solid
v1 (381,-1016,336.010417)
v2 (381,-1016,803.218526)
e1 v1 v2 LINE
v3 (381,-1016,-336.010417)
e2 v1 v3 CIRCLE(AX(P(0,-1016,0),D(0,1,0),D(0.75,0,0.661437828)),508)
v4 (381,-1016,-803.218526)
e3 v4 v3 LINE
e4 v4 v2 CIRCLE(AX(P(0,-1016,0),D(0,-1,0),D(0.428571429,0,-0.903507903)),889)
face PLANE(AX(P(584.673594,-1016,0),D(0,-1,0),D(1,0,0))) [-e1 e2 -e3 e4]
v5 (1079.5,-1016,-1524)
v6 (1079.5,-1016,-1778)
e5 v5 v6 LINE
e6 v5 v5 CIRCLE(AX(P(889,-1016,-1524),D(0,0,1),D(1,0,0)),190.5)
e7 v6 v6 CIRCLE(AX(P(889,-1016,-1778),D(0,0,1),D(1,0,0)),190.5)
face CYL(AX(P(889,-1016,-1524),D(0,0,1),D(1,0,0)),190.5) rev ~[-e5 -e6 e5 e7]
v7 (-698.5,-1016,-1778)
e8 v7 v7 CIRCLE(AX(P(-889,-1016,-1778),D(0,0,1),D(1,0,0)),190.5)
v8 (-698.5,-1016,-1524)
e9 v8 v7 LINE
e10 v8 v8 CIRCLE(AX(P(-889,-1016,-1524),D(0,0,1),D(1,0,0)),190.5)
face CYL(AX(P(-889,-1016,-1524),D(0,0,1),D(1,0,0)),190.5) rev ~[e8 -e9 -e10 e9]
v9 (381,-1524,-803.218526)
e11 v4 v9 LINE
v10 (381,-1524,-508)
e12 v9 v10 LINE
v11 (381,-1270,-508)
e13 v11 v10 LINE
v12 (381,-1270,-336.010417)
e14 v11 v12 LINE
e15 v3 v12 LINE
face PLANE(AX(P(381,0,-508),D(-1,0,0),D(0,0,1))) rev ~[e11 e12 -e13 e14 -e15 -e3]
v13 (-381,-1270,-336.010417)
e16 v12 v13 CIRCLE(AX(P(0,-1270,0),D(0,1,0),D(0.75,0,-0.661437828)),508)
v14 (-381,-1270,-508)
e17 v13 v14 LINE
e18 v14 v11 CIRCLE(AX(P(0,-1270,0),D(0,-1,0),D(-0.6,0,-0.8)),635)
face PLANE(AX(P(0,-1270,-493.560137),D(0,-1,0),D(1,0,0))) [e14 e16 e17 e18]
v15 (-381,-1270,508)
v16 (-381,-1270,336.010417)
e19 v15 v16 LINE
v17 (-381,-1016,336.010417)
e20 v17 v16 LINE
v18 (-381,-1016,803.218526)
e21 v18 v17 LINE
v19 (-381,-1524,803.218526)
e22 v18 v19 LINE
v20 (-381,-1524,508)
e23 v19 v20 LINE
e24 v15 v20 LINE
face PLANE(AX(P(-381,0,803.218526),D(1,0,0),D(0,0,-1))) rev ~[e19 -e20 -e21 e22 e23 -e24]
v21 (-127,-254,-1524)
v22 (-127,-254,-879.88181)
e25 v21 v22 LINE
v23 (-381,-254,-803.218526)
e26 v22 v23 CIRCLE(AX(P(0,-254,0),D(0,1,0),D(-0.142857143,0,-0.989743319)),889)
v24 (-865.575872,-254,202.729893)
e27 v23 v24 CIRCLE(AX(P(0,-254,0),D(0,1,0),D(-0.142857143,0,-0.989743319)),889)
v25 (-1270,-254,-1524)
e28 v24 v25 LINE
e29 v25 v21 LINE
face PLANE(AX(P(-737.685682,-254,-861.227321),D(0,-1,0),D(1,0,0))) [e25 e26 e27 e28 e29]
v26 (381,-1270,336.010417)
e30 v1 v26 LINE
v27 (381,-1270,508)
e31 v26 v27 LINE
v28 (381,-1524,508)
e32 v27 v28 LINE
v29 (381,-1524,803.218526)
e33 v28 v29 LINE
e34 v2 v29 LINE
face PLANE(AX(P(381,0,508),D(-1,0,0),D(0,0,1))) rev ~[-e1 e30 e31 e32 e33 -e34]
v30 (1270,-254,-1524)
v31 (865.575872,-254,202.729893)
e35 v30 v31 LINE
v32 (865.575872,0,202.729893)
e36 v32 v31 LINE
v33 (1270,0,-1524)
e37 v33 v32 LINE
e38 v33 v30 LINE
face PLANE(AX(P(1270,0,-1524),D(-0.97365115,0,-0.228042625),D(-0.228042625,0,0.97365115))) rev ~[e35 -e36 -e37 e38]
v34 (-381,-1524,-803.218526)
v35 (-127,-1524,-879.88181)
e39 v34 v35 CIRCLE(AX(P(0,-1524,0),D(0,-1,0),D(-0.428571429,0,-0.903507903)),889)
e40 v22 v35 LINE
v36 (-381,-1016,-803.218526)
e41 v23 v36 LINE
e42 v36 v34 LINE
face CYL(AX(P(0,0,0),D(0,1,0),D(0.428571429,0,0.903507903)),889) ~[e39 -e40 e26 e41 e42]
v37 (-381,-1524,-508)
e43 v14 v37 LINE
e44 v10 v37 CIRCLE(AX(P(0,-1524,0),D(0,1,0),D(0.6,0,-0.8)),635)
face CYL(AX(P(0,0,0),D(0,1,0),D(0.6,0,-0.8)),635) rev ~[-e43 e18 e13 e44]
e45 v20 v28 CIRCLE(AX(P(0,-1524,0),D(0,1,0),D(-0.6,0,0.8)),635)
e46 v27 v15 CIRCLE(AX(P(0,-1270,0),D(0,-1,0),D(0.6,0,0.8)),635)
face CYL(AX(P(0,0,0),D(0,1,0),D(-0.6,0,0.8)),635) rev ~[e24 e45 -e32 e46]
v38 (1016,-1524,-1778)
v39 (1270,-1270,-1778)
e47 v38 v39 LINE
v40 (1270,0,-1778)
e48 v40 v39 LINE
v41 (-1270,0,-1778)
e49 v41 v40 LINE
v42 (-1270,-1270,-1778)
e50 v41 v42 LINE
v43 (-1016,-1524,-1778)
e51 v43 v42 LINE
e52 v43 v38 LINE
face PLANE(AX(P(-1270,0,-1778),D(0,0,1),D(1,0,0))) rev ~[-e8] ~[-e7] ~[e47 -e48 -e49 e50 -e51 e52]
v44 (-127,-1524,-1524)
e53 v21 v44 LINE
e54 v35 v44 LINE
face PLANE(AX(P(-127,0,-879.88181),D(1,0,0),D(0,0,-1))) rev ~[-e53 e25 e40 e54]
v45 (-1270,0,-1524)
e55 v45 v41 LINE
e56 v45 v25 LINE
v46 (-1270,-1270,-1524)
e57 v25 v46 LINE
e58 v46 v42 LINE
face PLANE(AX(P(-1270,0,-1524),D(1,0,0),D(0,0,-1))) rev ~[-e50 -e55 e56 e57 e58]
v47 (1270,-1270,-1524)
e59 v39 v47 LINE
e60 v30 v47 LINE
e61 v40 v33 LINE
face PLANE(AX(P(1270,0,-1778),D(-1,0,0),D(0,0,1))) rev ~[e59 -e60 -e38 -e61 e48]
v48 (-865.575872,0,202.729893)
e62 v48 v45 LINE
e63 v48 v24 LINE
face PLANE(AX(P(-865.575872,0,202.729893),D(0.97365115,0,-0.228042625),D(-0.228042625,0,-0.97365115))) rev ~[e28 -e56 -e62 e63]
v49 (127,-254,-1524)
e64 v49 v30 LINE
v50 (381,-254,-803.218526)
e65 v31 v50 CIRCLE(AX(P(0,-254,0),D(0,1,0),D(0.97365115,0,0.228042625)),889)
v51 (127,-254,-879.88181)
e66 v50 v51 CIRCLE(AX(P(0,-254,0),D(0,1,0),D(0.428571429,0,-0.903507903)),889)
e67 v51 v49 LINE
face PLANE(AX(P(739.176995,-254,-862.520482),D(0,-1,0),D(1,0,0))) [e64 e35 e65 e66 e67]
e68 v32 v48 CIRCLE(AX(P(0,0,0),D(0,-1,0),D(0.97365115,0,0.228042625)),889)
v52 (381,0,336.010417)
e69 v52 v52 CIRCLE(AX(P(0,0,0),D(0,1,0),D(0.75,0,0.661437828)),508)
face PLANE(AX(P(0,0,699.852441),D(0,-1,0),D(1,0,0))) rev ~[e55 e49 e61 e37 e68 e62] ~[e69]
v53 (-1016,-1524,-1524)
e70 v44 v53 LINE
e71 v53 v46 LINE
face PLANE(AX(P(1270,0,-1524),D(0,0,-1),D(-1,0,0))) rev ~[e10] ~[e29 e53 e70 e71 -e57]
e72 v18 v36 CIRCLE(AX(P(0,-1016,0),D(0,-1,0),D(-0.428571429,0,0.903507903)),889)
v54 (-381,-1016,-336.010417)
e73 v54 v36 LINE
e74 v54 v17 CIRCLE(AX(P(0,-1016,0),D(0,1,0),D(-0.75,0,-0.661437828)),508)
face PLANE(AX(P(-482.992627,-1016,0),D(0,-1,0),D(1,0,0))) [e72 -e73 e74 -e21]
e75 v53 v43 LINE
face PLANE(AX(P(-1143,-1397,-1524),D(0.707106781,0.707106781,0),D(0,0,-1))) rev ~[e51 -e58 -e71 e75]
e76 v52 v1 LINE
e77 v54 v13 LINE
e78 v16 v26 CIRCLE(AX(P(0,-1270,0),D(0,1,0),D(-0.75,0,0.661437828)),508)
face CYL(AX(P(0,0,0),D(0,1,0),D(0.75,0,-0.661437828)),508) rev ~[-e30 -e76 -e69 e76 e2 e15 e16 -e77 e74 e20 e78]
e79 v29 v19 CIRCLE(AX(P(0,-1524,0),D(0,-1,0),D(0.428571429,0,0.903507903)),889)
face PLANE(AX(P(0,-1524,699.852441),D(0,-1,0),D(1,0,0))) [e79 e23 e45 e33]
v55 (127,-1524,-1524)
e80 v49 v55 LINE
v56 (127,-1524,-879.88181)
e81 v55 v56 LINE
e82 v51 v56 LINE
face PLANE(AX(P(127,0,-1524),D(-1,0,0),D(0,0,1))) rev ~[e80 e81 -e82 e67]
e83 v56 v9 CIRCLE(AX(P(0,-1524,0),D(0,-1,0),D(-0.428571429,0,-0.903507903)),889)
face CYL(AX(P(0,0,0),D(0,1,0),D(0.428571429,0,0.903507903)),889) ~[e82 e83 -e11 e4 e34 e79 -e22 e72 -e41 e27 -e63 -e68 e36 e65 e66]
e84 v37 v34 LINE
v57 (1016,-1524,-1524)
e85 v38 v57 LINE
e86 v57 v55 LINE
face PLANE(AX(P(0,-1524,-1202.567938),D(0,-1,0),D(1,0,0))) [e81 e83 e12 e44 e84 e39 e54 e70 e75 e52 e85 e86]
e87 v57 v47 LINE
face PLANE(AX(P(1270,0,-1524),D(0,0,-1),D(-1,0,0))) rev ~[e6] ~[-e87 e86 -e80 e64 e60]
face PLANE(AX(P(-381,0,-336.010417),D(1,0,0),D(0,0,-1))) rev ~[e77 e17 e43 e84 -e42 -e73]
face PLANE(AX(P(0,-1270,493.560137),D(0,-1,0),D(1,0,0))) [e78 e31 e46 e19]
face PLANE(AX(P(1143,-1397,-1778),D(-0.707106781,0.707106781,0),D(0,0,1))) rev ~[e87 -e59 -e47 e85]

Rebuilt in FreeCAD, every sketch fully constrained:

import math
import FreeCAD as App
import Part
import Sketcher
Q = App.Units.Quantity


def edges_at(feature, points):
    """Names of the edges that pass closest to the given points."""
    edges = feature.Shape.Edges
    near = lambda p: min(range(len(edges)), key=lambda i: edges[i].distToShape(Part.Vertex(*p))[0])
    return sorted({f"Edge{near(p) + 1}" for p in points})

doc = App.newDocument("Part")
body = doc.addObject("PartDesign::Body", "Body")

sketch1 = doc.addObject("Sketcher::SketchObject", "Sketch")
body.addObject(sketch1)
sketch1.AttachmentSupport = (doc.XZ_Plane, [""])
sketch1.MapMode = "FlatFace"
sketch1.addGeometry(Part.LineSegment(App.Vector(1270, -1778, 0), App.Vector(1270, -1524, 0)), False)
sketch1.addGeometry(Part.LineSegment(App.Vector(1270, -1524, 0), App.Vector(-1270, -1524, 0)), False)
sketch1.addGeometry(Part.LineSegment(App.Vector(-1270, -1524, 0), App.Vector(-1270, -1778, 0)), False)
sketch1.addGeometry(Part.LineSegment(App.Vector(-1270, -1778, 0), App.Vector(1270, -1778, 0)), False)
sketch1.addConstraint(Sketcher.Constraint("Coincident", 0, 2, 1, 1))
sketch1.addConstraint(Sketcher.Constraint("Coincident", 1, 2, 2, 1))
sketch1.addConstraint(Sketcher.Constraint("Coincident", 2, 2, 3, 1))
sketch1.addConstraint(Sketcher.Constraint("Coincident", 3, 2, 0, 1))
sketch1.addConstraint(Sketcher.Constraint("Vertical", 0))
sketch1.addConstraint(Sketcher.Constraint("Horizontal", 1))
sketch1.addConstraint(Sketcher.Constraint("Vertical", 2))
sketch1.addConstraint(Sketcher.Constraint("Horizontal", 3))
sketch1.addConstraint(Sketcher.Constraint("DistanceX", 1, 2, 1, 1, Q("100 in")))
sketch1.addConstraint(Sketcher.Constraint("DistanceY", 0, 1, 0, 2, Q("10 in")))
sketch1.addConstraint(Sketcher.Constraint("DistanceX", -1, 1, 0, 2, Q("50 in")))
sketch1.addConstraint(Sketcher.Constraint("DistanceY", 0, 2, -1, 1, Q("60 in")))
pad1 = doc.addObject("PartDesign::Pad", "Pad")
body.addObject(pad1)
pad1.Profile = sketch1
pad1.Length = Q("60 in")

sketch2 = doc.addObject("Sketcher::SketchObject", "Sketch001")
body.addObject(sketch2)
sketch2.AttachmentSupport = (doc.XZ_Plane, [""])
sketch2.MapMode = "FlatFace"
sketch2.addGeometry(Part.ArcOfCircle(Part.Circle(App.Vector(0, 0, 0), App.Vector(0, 0, 1), 889), math.radians(-65), math.radians(13)), False)
sketch2.addGeometry(Part.ArcOfCircle(Part.Circle(App.Vector(0, 0, 0), App.Vector(0, 0, 1), 889), math.radians(-81.79), math.radians(-64.62)), False)
sketch2.addGeometry(Part.LineSegment(App.Vector(127, -880, 0), App.Vector(127, -1524, 0)), False)
sketch2.addGeometry(Part.LineSegment(App.Vector(127, -1524, 0), App.Vector(1270, -1524, 0)), False)
sketch2.addGeometry(Part.LineSegment(App.Vector(1270, -1524, 0), App.Vector(866, 203, 0)), False)
sketch2.addGeometry(Part.LineSegment(App.Vector(-127, -1524, 0), App.Vector(-127, -880, 0)), False)
sketch2.addGeometry(Part.ArcOfCircle(Part.Circle(App.Vector(0, 0, 0), App.Vector(0, 0, 1), 889), math.radians(167), math.radians(262)), False)
sketch2.addGeometry(Part.LineSegment(App.Vector(-866, 203, 0), App.Vector(-1270, -1524, 0)), False)
sketch2.addGeometry(Part.LineSegment(App.Vector(-1270, -1524, 0), App.Vector(-127, -1524, 0)), False)
sketch2.addConstraint(Sketcher.Constraint("Coincident", 0, 1, 1, 2))
sketch2.addConstraint(Sketcher.Constraint("Coincident", 1, 1, 2, 1))
sketch2.addConstraint(Sketcher.Constraint("Coincident", 2, 2, 3, 1))
sketch2.addConstraint(Sketcher.Constraint("Coincident", 3, 2, 4, 1))
sketch2.addConstraint(Sketcher.Constraint("Coincident", 4, 2, 0, 2))
sketch2.addConstraint(Sketcher.Constraint("Coincident", 5, 2, 6, 2))
sketch2.addConstraint(Sketcher.Constraint("Coincident", 6, 1, 7, 1))
sketch2.addConstraint(Sketcher.Constraint("Coincident", 7, 2, 8, 1))
sketch2.addConstraint(Sketcher.Constraint("Coincident", 8, 2, 5, 1))
sketch2.addConstraint(Sketcher.Constraint("Vertical", 2))
sketch2.addConstraint(Sketcher.Constraint("Horizontal", 3))
sketch2.addConstraint(Sketcher.Constraint("Vertical", 5))
sketch2.addConstraint(Sketcher.Constraint("Horizontal", 8))
sketch2.addConstraint(Sketcher.Constraint("Coincident", 0, 3, -1, 1))
sketch2.addConstraint(Sketcher.Constraint("Coincident", 1, 3, -1, 1))
sketch2.addConstraint(Sketcher.Constraint("Coincident", 6, 3, -1, 1))
sketch2.addConstraint(Sketcher.Constraint("Equal", 1, 6))
sketch2.addConstraint(Sketcher.Constraint("Symmetric", 3, 2, 7, 2, -2))
sketch2.addConstraint(Sketcher.Constraint("Equal", 3, 8))
sketch2.addConstraint(Sketcher.Constraint("Equal", 4, 7))
sketch2.addConstraint(Sketcher.Constraint("Radius", 0, Q("35 in")))
sketch2.addConstraint(Sketcher.Constraint("DistanceX", 3, 1, 3, 2, Q("45 in")))
sketch2.addConstraint(Sketcher.Constraint("DistanceX", -1, 1, 0, 1, Q("15 in")))
sketch2.addConstraint(Sketcher.Constraint("DistanceX", -1, 1, 2, 2, Q("5 in")))
sketch2.addConstraint(Sketcher.Constraint("DistanceY", 2, 2, -1, 1, Q("60 in")))
sketch2.addConstraint(Sketcher.Constraint("Distance", 4, Q("1773.458486 mm")))
pad2 = doc.addObject("PartDesign::Pad", "Pad001")
body.addObject(pad2)
pad2.Profile = sketch2
pad2.Length = Q("10 in")

sketch3 = doc.addObject("Sketcher::SketchObject", "Sketch002")
body.addObject(sketch3)
sketch3.AttachmentSupport = (doc.XZ_Plane, [""])
sketch3.MapMode = "FlatFace"
sketch3.addGeometry(Part.LineSegment(App.Vector(127, -1524, 0), App.Vector(127, -880, 0)), False)
sketch3.addGeometry(Part.ArcOfCircle(Part.Circle(App.Vector(0, 0, 0), App.Vector(0, 0, 1), 889), math.radians(-81.79), math.radians(-64.62)), False)
sketch3.addGeometry(Part.LineSegment(App.Vector(381, -803, 0), App.Vector(381, -508, 0)), False)
sketch3.addGeometry(Part.ArcOfCircle(Part.Circle(App.Vector(0, 0, 0), App.Vector(0, 0, 1), 635), math.radians(-127), math.radians(-53)), False)
sketch3.addGeometry(Part.LineSegment(App.Vector(-381, -508, 0), App.Vector(-381, -803, 0)), False)
sketch3.addGeometry(Part.ArcOfCircle(Part.Circle(App.Vector(0, 0, 0), App.Vector(0, 0, 1), 889), math.radians(-115.38), math.radians(-98.21)), False)
sketch3.addGeometry(Part.LineSegment(App.Vector(-127, -880, 0), App.Vector(-127, -1524, 0)), False)
sketch3.addGeometry(Part.LineSegment(App.Vector(-127, -1524, 0), App.Vector(127, -1524, 0)), False)
sketch3.addConstraint(Sketcher.Constraint("Coincident", 0, 2, 1, 1))
sketch3.addConstraint(Sketcher.Constraint("Coincident", 1, 2, 2, 1))
sketch3.addConstraint(Sketcher.Constraint("Coincident", 2, 2, 3, 2))
sketch3.addConstraint(Sketcher.Constraint("Coincident", 3, 1, 4, 1))
sketch3.addConstraint(Sketcher.Constraint("Coincident", 4, 2, 5, 1))
sketch3.addConstraint(Sketcher.Constraint("Coincident", 5, 2, 6, 1))
sketch3.addConstraint(Sketcher.Constraint("Coincident", 6, 2, 7, 1))
sketch3.addConstraint(Sketcher.Constraint("Coincident", 7, 2, 0, 1))
sketch3.addConstraint(Sketcher.Constraint("Vertical", 0))
sketch3.addConstraint(Sketcher.Constraint("Vertical", 2))
sketch3.addConstraint(Sketcher.Constraint("Vertical", 4))
sketch3.addConstraint(Sketcher.Constraint("Vertical", 6))
sketch3.addConstraint(Sketcher.Constraint("Horizontal", 7))
sketch3.addConstraint(Sketcher.Constraint("Coincident", 1, 3, -1, 1))
sketch3.addConstraint(Sketcher.Constraint("Coincident", 3, 3, -1, 1))
sketch3.addConstraint(Sketcher.Constraint("Coincident", 5, 3, -1, 1))
sketch3.addConstraint(Sketcher.Constraint("Equal", 1, 5))
sketch3.addConstraint(Sketcher.Constraint("Equal", 2, 4))
sketch3.addConstraint(Sketcher.Constraint("Equal", 0, 6))
sketch3.addConstraint(Sketcher.Constraint("Radius", 1, Q("35 in")))
sketch3.addConstraint(Sketcher.Constraint("Radius", 3, Q("25 in")))
sketch3.addConstraint(Sketcher.Constraint("DistanceX", 7, 1, 7, 2, Q("10 in")))
sketch3.addConstraint(Sketcher.Constraint("DistanceX", -1, 1, 2, 2, Q("15 in")))
sketch3.addConstraint(Sketcher.Constraint("DistanceY", 6, 2, -1, 1, Q("60 in")))
pad3 = doc.addObject("PartDesign::Pad", "Pad002")
body.addObject(pad3)
pad3.Profile = sketch3
pad3.Length = Q("60 in")

sketch4 = doc.addObject("Sketcher::SketchObject", "Sketch003")
body.addObject(sketch4)
sketch4.AttachmentSupport = (doc.XZ_Plane, [""])
sketch4.MapMode = "FlatFace"
sketch4.addGeometry(Part.ArcOfCircle(Part.Circle(App.Vector(0, 0, 0), App.Vector(0, 0, 1), 889), math.radians(-65), math.radians(65)), False)
sketch4.addGeometry(Part.LineSegment(App.Vector(381, 803, 0), App.Vector(381, 336, 0)), False)
sketch4.addGeometry(Part.ArcOfCircle(Part.Circle(App.Vector(0, 0, 0), App.Vector(0, 0, 1), 508), math.radians(-41), math.radians(41)), False)
sketch4.addGeometry(Part.LineSegment(App.Vector(381, -336, 0), App.Vector(381, -803, 0)), False)
sketch4.addGeometry(Part.ArcOfCircle(Part.Circle(App.Vector(0, 0, 0), App.Vector(0, 0, 1), 508), math.radians(139), math.radians(221)), False)
sketch4.addGeometry(Part.LineSegment(App.Vector(-381, 336, 0), App.Vector(-381, 803, 0)), False)
sketch4.addGeometry(Part.ArcOfCircle(Part.Circle(App.Vector(0, 0, 0), App.Vector(0, 0, 1), 889), math.radians(115), math.radians(245)), False)
sketch4.addGeometry(Part.LineSegment(App.Vector(-381, -803, 0), App.Vector(-381, -336, 0)), False)
sketch4.addConstraint(Sketcher.Constraint("Coincident", 0, 2, 1, 1))
sketch4.addConstraint(Sketcher.Constraint("Coincident", 1, 2, 2, 2))
sketch4.addConstraint(Sketcher.Constraint("Coincident", 2, 1, 3, 1))
sketch4.addConstraint(Sketcher.Constraint("Coincident", 3, 2, 0, 1))
sketch4.addConstraint(Sketcher.Constraint("Coincident", 4, 1, 5, 1))
sketch4.addConstraint(Sketcher.Constraint("Coincident", 5, 2, 6, 1))
sketch4.addConstraint(Sketcher.Constraint("Coincident", 6, 2, 7, 1))
sketch4.addConstraint(Sketcher.Constraint("Coincident", 7, 2, 4, 2))
sketch4.addConstraint(Sketcher.Constraint("Vertical", 1))
sketch4.addConstraint(Sketcher.Constraint("Vertical", 3))
sketch4.addConstraint(Sketcher.Constraint("Vertical", 5))
sketch4.addConstraint(Sketcher.Constraint("Vertical", 7))
sketch4.addConstraint(Sketcher.Constraint("Coincident", 0, 3, -1, 1))
sketch4.addConstraint(Sketcher.Constraint("Coincident", 2, 3, -1, 1))
sketch4.addConstraint(Sketcher.Constraint("Coincident", 4, 3, -1, 1))
sketch4.addConstraint(Sketcher.Constraint("Coincident", 6, 3, -1, 1))
sketch4.addConstraint(Sketcher.Constraint("Equal", 2, 4))
sketch4.addConstraint(Sketcher.Constraint("Equal", 0, 6))
sketch4.addConstraint(Sketcher.Constraint("Horizontal", 1, 2, 4, 1))
sketch4.addConstraint(Sketcher.Constraint("Horizontal", 2, 1, 7, 2))
sketch4.addConstraint(Sketcher.Constraint("Equal", 1, 3))
sketch4.addConstraint(Sketcher.Constraint("Radius", 0, Q("35 in")))
sketch4.addConstraint(Sketcher.Constraint("Radius", 2, Q("20 in")))
sketch4.addConstraint(Sketcher.Constraint("DistanceX", -1, 1, 1, 2, Q("15 in")))
pad4 = doc.addObject("PartDesign::Pad", "Pad003")
body.addObject(pad4)
pad4.Profile = sketch4
pad4.Length = Q("40 in")

sketch5 = doc.addObject("Sketcher::SketchObject", "Sketch004")
body.addObject(sketch5)
sketch5.AttachmentSupport = (doc.XZ_Plane, [""])
sketch5.MapMode = "FlatFace"
sketch5.addGeometry(Part.ArcOfCircle(Part.Circle(App.Vector(0, 0, 0), App.Vector(0, 0, 1), 635), math.radians(-127), math.radians(-53)), False)
sketch5.addGeometry(Part.LineSegment(App.Vector(381, -508, 0), App.Vector(381, -336, 0)), False)
sketch5.addGeometry(Part.ArcOfCircle(Part.Circle(App.Vector(0, 0, 0), App.Vector(0, 0, 1), 508), math.radians(-139), math.radians(-41)), False)
sketch5.addGeometry(Part.LineSegment(App.Vector(-381, -336, 0), App.Vector(-381, -508, 0)), False)
sketch5.addGeometry(Part.LineSegment(App.Vector(381, 336, 0), App.Vector(381, 508, 0)), False)
sketch5.addGeometry(Part.ArcOfCircle(Part.Circle(App.Vector(0, 0, 0), App.Vector(0, 0, 1), 635), math.radians(53), math.radians(127)), False)
sketch5.addGeometry(Part.LineSegment(App.Vector(-381, 508, 0), App.Vector(-381, 336, 0)), False)
sketch5.addGeometry(Part.ArcOfCircle(Part.Circle(App.Vector(0, 0, 0), App.Vector(0, 0, 1), 508), math.radians(41), math.radians(139)), False)
sketch5.addConstraint(Sketcher.Constraint("Coincident", 0, 2, 1, 1))
sketch5.addConstraint(Sketcher.Constraint("Coincident", 1, 2, 2, 2))
sketch5.addConstraint(Sketcher.Constraint("Coincident", 2, 1, 3, 1))
sketch5.addConstraint(Sketcher.Constraint("Coincident", 3, 2, 0, 1))
sketch5.addConstraint(Sketcher.Constraint("Coincident", 4, 2, 5, 1))
sketch5.addConstraint(Sketcher.Constraint("Coincident", 5, 2, 6, 1))
sketch5.addConstraint(Sketcher.Constraint("Coincident", 6, 2, 7, 2))
sketch5.addConstraint(Sketcher.Constraint("Coincident", 7, 1, 4, 1))
sketch5.addConstraint(Sketcher.Constraint("Vertical", 1))
sketch5.addConstraint(Sketcher.Constraint("Vertical", 3))
sketch5.addConstraint(Sketcher.Constraint("Vertical", 4))
sketch5.addConstraint(Sketcher.Constraint("Vertical", 6))
sketch5.addConstraint(Sketcher.Constraint("Coincident", 0, 3, -1, 1))
sketch5.addConstraint(Sketcher.Constraint("Coincident", 2, 3, -1, 1))
sketch5.addConstraint(Sketcher.Constraint("Coincident", 5, 3, -1, 1))
sketch5.addConstraint(Sketcher.Constraint("Coincident", 7, 3, -1, 1))
sketch5.addConstraint(Sketcher.Constraint("Equal", 0, 5))
sketch5.addConstraint(Sketcher.Constraint("Equal", 2, 7))
sketch5.addConstraint(Sketcher.Constraint("Horizontal", 1, 2, 2, 1))
sketch5.addConstraint(Sketcher.Constraint("Horizontal", 6, 2, 7, 1))
sketch5.addConstraint(Sketcher.Constraint("Vertical", 1, 2, 4, 2))
sketch5.addConstraint(Sketcher.Constraint("Radius", 0, Q("25 in")))
sketch5.addConstraint(Sketcher.Constraint("Radius", 2, Q("20 in")))
sketch5.addConstraint(Sketcher.Constraint("DistanceX", -1, 1, 1, 2, Q("15 in")))
pad5 = doc.addObject("PartDesign::Pad", "Pad004")
body.addObject(pad5)
pad5.Profile = sketch5
pad5.Length = Q("50 in")

sketch6 = doc.addObject("Sketcher::SketchObject", "Sketch005")
body.addObject(sketch6)
sketch6.AttachmentSupport = (doc.XZ_Plane, [""])
sketch6.MapMode = "FlatFace"
sketch6.addGeometry(Part.LineSegment(App.Vector(381, 508, 0), App.Vector(381, 803, 0)), False)
sketch6.addGeometry(Part.ArcOfCircle(Part.Circle(App.Vector(0, 0, 0), App.Vector(0, 0, 1), 889), math.radians(65), math.radians(115)), False)
sketch6.addGeometry(Part.LineSegment(App.Vector(-381, 803, 0), App.Vector(-381, 508, 0)), False)
sketch6.addGeometry(Part.ArcOfCircle(Part.Circle(App.Vector(0, 0, 0), App.Vector(0, 0, 1), 635), math.radians(53), math.radians(127)), False)
sketch6.addConstraint(Sketcher.Constraint("Coincident", 0, 2, 1, 1))
sketch6.addConstraint(Sketcher.Constraint("Coincident", 1, 2, 2, 1))
sketch6.addConstraint(Sketcher.Constraint("Coincident", 2, 2, 3, 2))
sketch6.addConstraint(Sketcher.Constraint("Coincident", 3, 1, 0, 1))
sketch6.addConstraint(Sketcher.Constraint("Vertical", 0))
sketch6.addConstraint(Sketcher.Constraint("Vertical", 2))
sketch6.addConstraint(Sketcher.Constraint("Coincident", 1, 3, -1, 1))
sketch6.addConstraint(Sketcher.Constraint("Coincident", 3, 3, -1, 1))
sketch6.addConstraint(Sketcher.Constraint("Equal", 0, 2))
sketch6.addConstraint(Sketcher.Constraint("Radius", 1, Q("35 in")))
sketch6.addConstraint(Sketcher.Constraint("Radius", 3, Q("25 in")))
sketch6.addConstraint(Sketcher.Constraint("DistanceX", -1, 1, 0, 2, Q("15 in")))
pad6 = doc.addObject("PartDesign::Pad", "Pad005")
body.addObject(pad6)
pad6.Profile = sketch6
pad6.Length = Q("60 in")

sketch7 = doc.addObject("Sketcher::SketchObject", "Sketch006")
body.addObject(sketch7)
sketch7.AttachmentSupport = (doc.XY_Plane, [""])
sketch7.MapMode = "FlatFace"
sketch7.AttachmentOffset = App.Placement(App.Vector(0, 0, -60 * 25.4), App.Rotation())
sketch7.addGeometry(Part.Circle(App.Vector(889, -1016, 0), App.Vector(0, 0, 1), 190), False)
sketch7.addGeometry(Part.Circle(App.Vector(-889, -1016, 0), App.Vector(0, 0, 1), 190), False)
sketch7.addConstraint(Sketcher.Constraint("Equal", 0, 1))
sketch7.addConstraint(Sketcher.Constraint("Symmetric", 0, 3, 1, 3, -2))
sketch7.addConstraint(Sketcher.Constraint("Diameter", 0, Q("15 in")))
sketch7.addConstraint(Sketcher.Constraint("DistanceX", -1, 1, 0, 3, Q("35 in")))
sketch7.addConstraint(Sketcher.Constraint("DistanceY", 0, 3, -1, 1, Q("40 in")))
pocket1 = doc.addObject("PartDesign::Pocket", "Pocket")
body.addObject(pocket1)
pocket1.Profile = sketch7
pocket1.Type = "ThroughAll"
doc.recompute()

chamfer = doc.addObject("PartDesign::Chamfer", "Chamfer")
body.addObject(chamfer)
chamfer.Base = (pocket1, edges_at(pocket1, [(-1270, -1524, -1651), (1270, -1524, -1651)]))
chamfer.Size = Q("10 in")

doc.recompute()
